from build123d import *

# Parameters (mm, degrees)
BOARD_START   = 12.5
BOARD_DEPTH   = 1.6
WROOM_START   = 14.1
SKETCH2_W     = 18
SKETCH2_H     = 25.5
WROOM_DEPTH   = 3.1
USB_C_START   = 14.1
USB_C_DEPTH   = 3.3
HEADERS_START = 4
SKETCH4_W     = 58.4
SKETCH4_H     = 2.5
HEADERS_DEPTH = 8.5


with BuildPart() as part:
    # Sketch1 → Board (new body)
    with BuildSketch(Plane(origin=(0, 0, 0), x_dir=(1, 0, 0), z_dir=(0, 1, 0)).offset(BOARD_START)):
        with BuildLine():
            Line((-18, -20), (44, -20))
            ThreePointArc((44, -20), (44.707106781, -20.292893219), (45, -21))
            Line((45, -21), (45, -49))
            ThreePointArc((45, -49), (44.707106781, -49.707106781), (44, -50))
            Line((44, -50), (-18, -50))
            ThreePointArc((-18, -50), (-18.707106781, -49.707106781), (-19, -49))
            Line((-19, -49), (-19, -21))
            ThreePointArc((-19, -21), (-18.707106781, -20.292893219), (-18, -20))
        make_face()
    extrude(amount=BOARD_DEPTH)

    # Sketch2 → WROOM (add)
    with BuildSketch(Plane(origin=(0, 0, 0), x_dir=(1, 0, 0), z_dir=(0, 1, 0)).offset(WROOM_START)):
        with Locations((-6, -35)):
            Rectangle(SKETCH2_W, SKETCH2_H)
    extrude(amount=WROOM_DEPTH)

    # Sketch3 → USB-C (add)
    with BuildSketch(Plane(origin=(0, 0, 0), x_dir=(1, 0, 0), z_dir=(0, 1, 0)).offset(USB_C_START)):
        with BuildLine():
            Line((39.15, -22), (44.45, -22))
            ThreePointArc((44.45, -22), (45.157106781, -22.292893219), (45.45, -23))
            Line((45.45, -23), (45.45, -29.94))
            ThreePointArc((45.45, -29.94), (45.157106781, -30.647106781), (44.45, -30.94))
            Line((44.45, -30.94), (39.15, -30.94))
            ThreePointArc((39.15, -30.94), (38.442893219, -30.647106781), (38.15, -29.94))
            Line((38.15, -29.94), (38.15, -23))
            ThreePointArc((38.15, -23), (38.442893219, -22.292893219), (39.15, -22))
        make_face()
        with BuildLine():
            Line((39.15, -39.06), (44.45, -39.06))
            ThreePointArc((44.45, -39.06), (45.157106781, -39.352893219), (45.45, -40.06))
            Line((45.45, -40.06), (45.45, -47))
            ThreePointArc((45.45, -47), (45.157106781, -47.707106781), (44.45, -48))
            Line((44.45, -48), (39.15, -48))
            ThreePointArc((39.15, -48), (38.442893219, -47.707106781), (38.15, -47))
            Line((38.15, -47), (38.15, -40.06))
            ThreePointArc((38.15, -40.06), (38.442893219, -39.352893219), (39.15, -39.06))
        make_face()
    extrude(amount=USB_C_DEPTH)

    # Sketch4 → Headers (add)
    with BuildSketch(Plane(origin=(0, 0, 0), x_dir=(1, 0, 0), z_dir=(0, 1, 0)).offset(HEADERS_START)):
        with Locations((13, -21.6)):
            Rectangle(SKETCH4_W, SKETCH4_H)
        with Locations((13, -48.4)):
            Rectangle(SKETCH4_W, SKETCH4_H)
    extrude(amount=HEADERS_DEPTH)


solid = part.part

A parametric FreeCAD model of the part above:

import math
import FreeCAD as App
import Part
import Sketcher
from FreeCAD import Vector

doc = App.newDocument("Part")
body = doc.addObject("PartDesign::Body", "Body")

# Sketch on XZ plane
sketch1 = body.newObject("Sketcher::SketchObject", "Sketch")
sketch1.AttachmentSupport = (doc.getObject("XZ_Plane"), [""])
sketch1.MapMode = "FlatFace"
sketch1.AttachmentOffset = App.Placement(Vector(0, 0, -12.5), App.Rotation())
sketch1.addGeometry([
    Part.LineSegment(Vector(44, 20, 0), Vector(-18, 20, 0)),  # 0
    Part.ArcOfCircle(Part.Circle(Vector(-18, 21, 0), Vector(0, 0, 1), 1), math.radians(-180), math.radians(-90)),  # 1
    Part.LineSegment(Vector(-19, 21, 0), Vector(-19, 49, 0)),  # 2
    Part.ArcOfCircle(Part.Circle(Vector(-18, 49, 0), Vector(0, 0, 1), 1), math.radians(90), math.radians(180)),  # 3
    Part.LineSegment(Vector(-18, 50, 0), Vector(44, 50, 0)),  # 4
    Part.ArcOfCircle(Part.Circle(Vector(44, 49, 0), Vector(0, 0, 1), 1), math.radians(0), math.radians(90)),  # 5
    Part.LineSegment(Vector(45, 49, 0), Vector(45, 21, 0)),  # 6
    Part.ArcOfCircle(Part.Circle(Vector(44, 21, 0), Vector(0, 0, 1), 1), math.radians(-90), math.radians(0)),  # 7
], False)
sketch1.addConstraint([
    Sketcher.Constraint("Tangent", 0, 2, 1, 2),
    Sketcher.Constraint("Tangent", 1, 1, 2, 1),
    Sketcher.Constraint("Tangent", 2, 2, 3, 2),
    Sketcher.Constraint("Tangent", 3, 1, 4, 1),
    Sketcher.Constraint("Tangent", 4, 2, 5, 2),
    Sketcher.Constraint("Tangent", 5, 1, 6, 1),
    Sketcher.Constraint("Tangent", 6, 2, 7, 2),
    Sketcher.Constraint("Tangent", 7, 1, 0, 1),
    Sketcher.Constraint("Horizontal", 0),
    Sketcher.Constraint("Vertical", 2),
    Sketcher.Constraint("Horizontal", 4),
    Sketcher.Constraint("Vertical", 6),
    Sketcher.Constraint("Equal", 1, 3),
    Sketcher.Constraint("Equal", 3, 5),
    Sketcher.Constraint("Equal", 5, 7),
    Sketcher.Constraint("Radius", 1, 1.0),
    Sketcher.Constraint("DistanceX", 0, 2, 0, 1, 62.0),
    Sketcher.Constraint("DistanceY", 2, 1, 2, 2, 28.0),
    Sketcher.Constraint("DistanceX", 1, 3, -1, 1, 18.0),
    Sketcher.Constraint("DistanceY", -1, 1, 1, 3, 21.0),
])
pad1 = body.newObject("PartDesign::Pad", "Pad")
pad1.Profile = sketch1
pad1.Length = 1.6
pad1.Reversed = True

# Sketch on XZ plane
sketch2 = body.newObject("Sketcher::SketchObject", "Sketch001")
sketch2.AttachmentSupport = (doc.getObject("XZ_Plane"), [""])
sketch2.MapMode = "FlatFace"
sketch2.AttachmentOffset = App.Placement(Vector(0, 0, -14.1), App.Rotation())
sketch2.addGeometry([
    Part.LineSegment(Vector(-15, 22.25, 0), Vector(-15, 47.75, 0)),
    Part.LineSegment(Vector(-15, 47.75, 0), Vector(3, 47.75, 0)),
    Part.LineSegment(Vector(3, 47.75, 0), Vector(3, 22.25, 0)),
    Part.LineSegment(Vector(3, 22.25, 0), Vector(-15, 22.25, 0)),
], False)
sketch2.addConstraint([
    Sketcher.Constraint("Coincident", 0, 2, 1, 1),
    Sketcher.Constraint("Coincident", 1, 2, 2, 1),
    Sketcher.Constraint("Coincident", 2, 2, 3, 1),
    Sketcher.Constraint("Coincident", 3, 2, 0, 1),
    Sketcher.Constraint("Vertical", 0),
    Sketcher.Constraint("Horizontal", 1),
    Sketcher.Constraint("Vertical", 2),
    Sketcher.Constraint("Horizontal", 3),
    Sketcher.Constraint("DistanceX", 1, 1, 1, 2, 18.0),
    Sketcher.Constraint("DistanceY", 0, 1, 0, 2, 25.5),
    Sketcher.Constraint("DistanceX", 0, 2, -1, 1, 15.0),
    Sketcher.Constraint("DistanceY", -1, 1, 0, 2, 47.75),
])
pad2 = body.newObject("PartDesign::Pad", "Pad001")
pad2.Profile = sketch2
pad2.Length = 3.1
pad2.Reversed = True

# Sketch on XZ plane
sketch3 = body.newObject("Sketcher::SketchObject", "Sketch002")
sketch3.AttachmentSupport = (doc.getObject("XZ_Plane"), [""])
sketch3.MapMode = "FlatFace"
sketch3.AttachmentOffset = App.Placement(Vector(0, 0, -14.1), App.Rotation())
sketch3.addGeometry([
    Part.LineSegment(Vector(44.45, 22, 0), Vector(39.15, 22, 0)),  # 0
    Part.ArcOfCircle(Part.Circle(Vector(39.15, 23, 0), Vector(0, 0, 1), 1), math.radians(-180), math.radians(-90)),  # 1
    Part.LineSegment(Vector(38.15, 23, 0), Vector(38.15, 29.94, 0)),  # 2
    Part.ArcOfCircle(Part.Circle(Vector(39.15, 29.94, 0), Vector(0, 0, 1), 1), math.radians(90), math.radians(180)),  # 3
    Part.LineSegment(Vector(39.15, 30.94, 0), Vector(44.45, 30.94, 0)),  # 4
    Part.ArcOfCircle(Part.Circle(Vector(44.45, 29.94, 0), Vector(0, 0, 1), 1), math.radians(0), math.radians(90)),  # 5
    Part.LineSegment(Vector(45.45, 29.94, 0), Vector(45.45, 23, 0)),  # 6
    Part.ArcOfCircle(Part.Circle(Vector(44.45, 23, 0), Vector(0, 0, 1), 1), math.radians(-90), math.radians(0)),  # 7
    Part.LineSegment(Vector(44.45, 39.06, 0), Vector(39.15, 39.06, 0)),  # 8
    Part.ArcOfCircle(Part.Circle(Vector(39.15, 40.06, 0), Vector(0, 0, 1), 1), math.radians(-180), math.radians(-90)),  # 9
    Part.LineSegment(Vector(38.15, 40.06, 0), Vector(38.15, 47, 0)),  # 10
    Part.ArcOfCircle(Part.Circle(Vector(39.15, 47, 0), Vector(0, 0, 1), 1), math.radians(90), math.radians(180)),  # 11
    Part.LineSegment(Vector(39.15, 48, 0), Vector(44.45, 48, 0)),  # 12
    Part.ArcOfCircle(Part.Circle(Vector(44.45, 47, 0), Vector(0, 0, 1), 1), math.radians(0), math.radians(90)),  # 13
    Part.LineSegment(Vector(45.45, 47, 0), Vector(45.45, 40.06, 0)),  # 14
    Part.ArcOfCircle(Part.Circle(Vector(44.45, 40.06, 0), Vector(0, 0, 1), 1), math.radians(-90), math.radians(0)),  # 15
], False)
sketch3.addConstraint([
    Sketcher.Constraint("Tangent", 0, 2, 1, 2),
    Sketcher.Constraint("Tangent", 1, 1, 2, 1),
    Sketcher.Constraint("Tangent", 2, 2, 3, 2),
    Sketcher.Constraint("Tangent", 3, 1, 4, 1),
    Sketcher.Constraint("Tangent", 4, 2, 5, 2),
    Sketcher.Constraint("Tangent", 5, 1, 6, 1),
    Sketcher.Constraint("Tangent", 6, 2, 7, 2),
    Sketcher.Constraint("Tangent", 7, 1, 0, 1),
    Sketcher.Constraint("Tangent", 8, 2, 9, 2),
    Sketcher.Constraint("Tangent", 9, 1, 10, 1),
    Sketcher.Constraint("Tangent", 10, 2, 11, 2),
    Sketcher.Constraint("Tangent", 11, 1, 12, 1),
    Sketcher.Constraint("Tangent", 12, 2, 13, 2),
    Sketcher.Constraint("Tangent", 13, 1, 14, 1),
    Sketcher.Constraint("Tangent", 14, 2, 15, 2),
    Sketcher.Constraint("Tangent", 15, 1, 8, 1),
    Sketcher.Constraint("Horizontal", 0),
    Sketcher.Constraint("Vertical", 2),
    Sketcher.Constraint("Horizontal", 4),
    Sketcher.Constraint("Vertical", 6),
    Sketcher.Constraint("Horizontal", 8),
    Sketcher.Constraint("Vertical", 10),
    Sketcher.Constraint("Horizontal", 12),
    Sketcher.Constraint("Vertical", 14),
    Sketcher.Constraint("Equal", 1, 3),
    Sketcher.Constraint("Equal", 3, 5),
    Sketcher.Constraint("Equal", 5, 7),
    Sketcher.Constraint("Equal", 7, 9),
    Sketcher.Constraint("Equal", 9, 11),
    Sketcher.Constraint("Equal", 11, 13),
    Sketcher.Constraint("Equal", 13, 15),
    Sketcher.Constraint("Vertical", 3, 3, 9, 3),
    Sketcher.Constraint("Vertical", 7, 3, 13, 3),
    Sketcher.Constraint("Equal", 6, 10),
    Sketcher.Constraint("Radius", 1, 1.0),
    Sketcher.Constraint("DistanceX", 0, 2, 0, 1, 5.3),
    Sketcher.Constraint("DistanceY", -1, 1, 1, 3, 23.0),
    Sketcher.Constraint("DistanceY", -1, 1, 11, 3, 47.0),
    Sketcher.Constraint("DistanceY", 2, 1, 2, 2, 6.94),
    Sketcher.Constraint("DistanceX", -1, 1, 1, 3, 39.15),
])
pad3 = body.newObject("PartDesign::Pad", "Pad002")
pad3.Profile = sketch3
pad3.Length = 3.3
pad3.Reversed = True

# Sketch on XZ plane
sketch4 = body.newObject("Sketcher::SketchObject", "Sketch003")
sketch4.AttachmentSupport = (doc.getObject("XZ_Plane"), [""])
sketch4.MapMode = "FlatFace"
sketch4.AttachmentOffset = App.Placement(Vector(0, 0, -4), App.Rotation())
sketch4.addGeometry([
    Part.LineSegment(Vector(-16.2, 20.35, 0), Vector(-16.2, 22.85, 0)),  # 0
    Part.LineSegment(Vector(-16.2, 22.85, 0), Vector(42.2, 22.85, 0)),  # 1
    Part.LineSegment(Vector(42.2, 22.85, 0), Vector(42.2, 20.35, 0)),  # 2
    Part.LineSegment(Vector(42.2, 20.35, 0), Vector(-16.2, 20.35, 0)),  # 3
    Part.LineSegment(Vector(-16.2, 47.15, 0), Vector(-16.2, 49.65, 0)),  # 4
    Part.LineSegment(Vector(-16.2, 49.65, 0), Vector(42.2, 49.65, 0)),  # 5
    Part.LineSegment(Vector(42.2, 49.65, 0), Vector(42.2, 47.15, 0)),  # 6
    Part.LineSegment(Vector(42.2, 47.15, 0), Vector(-16.2, 47.15, 0)),  # 7
], False)
sketch4.addConstraint([
    Sketcher.Constraint("Coincident", 0, 2, 1, 1),
    Sketcher.Constraint("Coincident", 1, 2, 2, 1),
    Sketcher.Constraint("Coincident", 2, 2, 3, 1),
    Sketcher.Constraint("Coincident", 3, 2, 0, 1),
    Sketcher.Constraint("Coincident", 4, 2, 5, 1),
    Sketcher.Constraint("Coincident", 5, 2, 6, 1),
    Sketcher.Constraint("Coincident", 6, 2, 7, 1),
    Sketcher.Constraint("Coincident", 7, 2, 4, 1),
    Sketcher.Constraint("Vertical", 0),
    Sketcher.Constraint("Horizontal", 1),
    Sketcher.Constraint("Vertical", 2),
    Sketcher.Constraint("Horizontal", 3),
    Sketcher.Constraint("Vertical", 4),
    Sketcher.Constraint("Horizontal", 5),
    Sketcher.Constraint("Vertical", 6),
    Sketcher.Constraint("Horizontal", 7),
    Sketcher.Constraint("Vertical", 3, 2, 4, 2),
    Sketcher.Constraint("Vertical", 2, 2, 5, 2),
    Sketcher.Constraint("Equal", 2, 4),
    Sketcher.Constraint("DistanceX", 1, 1, 1, 2, 58.4),
    Sketcher.Constraint("DistanceY", 0, 1, 0, 2, 2.5),
    Sketcher.Constraint("DistanceX", 0, 2, -1, 1, 16.2),
    Sketcher.Constraint("DistanceY", 0, 2, 4, 2, 26.8),
    Sketcher.Constraint("DistanceY", -1, 1, 0, 2, 22.85),
])
pad4 = body.newObject("PartDesign::Pad", "Pad003")
pad4.Profile = sketch4
pad4.Length = 8.5
pad4.Reversed = True

doc.recompute()
